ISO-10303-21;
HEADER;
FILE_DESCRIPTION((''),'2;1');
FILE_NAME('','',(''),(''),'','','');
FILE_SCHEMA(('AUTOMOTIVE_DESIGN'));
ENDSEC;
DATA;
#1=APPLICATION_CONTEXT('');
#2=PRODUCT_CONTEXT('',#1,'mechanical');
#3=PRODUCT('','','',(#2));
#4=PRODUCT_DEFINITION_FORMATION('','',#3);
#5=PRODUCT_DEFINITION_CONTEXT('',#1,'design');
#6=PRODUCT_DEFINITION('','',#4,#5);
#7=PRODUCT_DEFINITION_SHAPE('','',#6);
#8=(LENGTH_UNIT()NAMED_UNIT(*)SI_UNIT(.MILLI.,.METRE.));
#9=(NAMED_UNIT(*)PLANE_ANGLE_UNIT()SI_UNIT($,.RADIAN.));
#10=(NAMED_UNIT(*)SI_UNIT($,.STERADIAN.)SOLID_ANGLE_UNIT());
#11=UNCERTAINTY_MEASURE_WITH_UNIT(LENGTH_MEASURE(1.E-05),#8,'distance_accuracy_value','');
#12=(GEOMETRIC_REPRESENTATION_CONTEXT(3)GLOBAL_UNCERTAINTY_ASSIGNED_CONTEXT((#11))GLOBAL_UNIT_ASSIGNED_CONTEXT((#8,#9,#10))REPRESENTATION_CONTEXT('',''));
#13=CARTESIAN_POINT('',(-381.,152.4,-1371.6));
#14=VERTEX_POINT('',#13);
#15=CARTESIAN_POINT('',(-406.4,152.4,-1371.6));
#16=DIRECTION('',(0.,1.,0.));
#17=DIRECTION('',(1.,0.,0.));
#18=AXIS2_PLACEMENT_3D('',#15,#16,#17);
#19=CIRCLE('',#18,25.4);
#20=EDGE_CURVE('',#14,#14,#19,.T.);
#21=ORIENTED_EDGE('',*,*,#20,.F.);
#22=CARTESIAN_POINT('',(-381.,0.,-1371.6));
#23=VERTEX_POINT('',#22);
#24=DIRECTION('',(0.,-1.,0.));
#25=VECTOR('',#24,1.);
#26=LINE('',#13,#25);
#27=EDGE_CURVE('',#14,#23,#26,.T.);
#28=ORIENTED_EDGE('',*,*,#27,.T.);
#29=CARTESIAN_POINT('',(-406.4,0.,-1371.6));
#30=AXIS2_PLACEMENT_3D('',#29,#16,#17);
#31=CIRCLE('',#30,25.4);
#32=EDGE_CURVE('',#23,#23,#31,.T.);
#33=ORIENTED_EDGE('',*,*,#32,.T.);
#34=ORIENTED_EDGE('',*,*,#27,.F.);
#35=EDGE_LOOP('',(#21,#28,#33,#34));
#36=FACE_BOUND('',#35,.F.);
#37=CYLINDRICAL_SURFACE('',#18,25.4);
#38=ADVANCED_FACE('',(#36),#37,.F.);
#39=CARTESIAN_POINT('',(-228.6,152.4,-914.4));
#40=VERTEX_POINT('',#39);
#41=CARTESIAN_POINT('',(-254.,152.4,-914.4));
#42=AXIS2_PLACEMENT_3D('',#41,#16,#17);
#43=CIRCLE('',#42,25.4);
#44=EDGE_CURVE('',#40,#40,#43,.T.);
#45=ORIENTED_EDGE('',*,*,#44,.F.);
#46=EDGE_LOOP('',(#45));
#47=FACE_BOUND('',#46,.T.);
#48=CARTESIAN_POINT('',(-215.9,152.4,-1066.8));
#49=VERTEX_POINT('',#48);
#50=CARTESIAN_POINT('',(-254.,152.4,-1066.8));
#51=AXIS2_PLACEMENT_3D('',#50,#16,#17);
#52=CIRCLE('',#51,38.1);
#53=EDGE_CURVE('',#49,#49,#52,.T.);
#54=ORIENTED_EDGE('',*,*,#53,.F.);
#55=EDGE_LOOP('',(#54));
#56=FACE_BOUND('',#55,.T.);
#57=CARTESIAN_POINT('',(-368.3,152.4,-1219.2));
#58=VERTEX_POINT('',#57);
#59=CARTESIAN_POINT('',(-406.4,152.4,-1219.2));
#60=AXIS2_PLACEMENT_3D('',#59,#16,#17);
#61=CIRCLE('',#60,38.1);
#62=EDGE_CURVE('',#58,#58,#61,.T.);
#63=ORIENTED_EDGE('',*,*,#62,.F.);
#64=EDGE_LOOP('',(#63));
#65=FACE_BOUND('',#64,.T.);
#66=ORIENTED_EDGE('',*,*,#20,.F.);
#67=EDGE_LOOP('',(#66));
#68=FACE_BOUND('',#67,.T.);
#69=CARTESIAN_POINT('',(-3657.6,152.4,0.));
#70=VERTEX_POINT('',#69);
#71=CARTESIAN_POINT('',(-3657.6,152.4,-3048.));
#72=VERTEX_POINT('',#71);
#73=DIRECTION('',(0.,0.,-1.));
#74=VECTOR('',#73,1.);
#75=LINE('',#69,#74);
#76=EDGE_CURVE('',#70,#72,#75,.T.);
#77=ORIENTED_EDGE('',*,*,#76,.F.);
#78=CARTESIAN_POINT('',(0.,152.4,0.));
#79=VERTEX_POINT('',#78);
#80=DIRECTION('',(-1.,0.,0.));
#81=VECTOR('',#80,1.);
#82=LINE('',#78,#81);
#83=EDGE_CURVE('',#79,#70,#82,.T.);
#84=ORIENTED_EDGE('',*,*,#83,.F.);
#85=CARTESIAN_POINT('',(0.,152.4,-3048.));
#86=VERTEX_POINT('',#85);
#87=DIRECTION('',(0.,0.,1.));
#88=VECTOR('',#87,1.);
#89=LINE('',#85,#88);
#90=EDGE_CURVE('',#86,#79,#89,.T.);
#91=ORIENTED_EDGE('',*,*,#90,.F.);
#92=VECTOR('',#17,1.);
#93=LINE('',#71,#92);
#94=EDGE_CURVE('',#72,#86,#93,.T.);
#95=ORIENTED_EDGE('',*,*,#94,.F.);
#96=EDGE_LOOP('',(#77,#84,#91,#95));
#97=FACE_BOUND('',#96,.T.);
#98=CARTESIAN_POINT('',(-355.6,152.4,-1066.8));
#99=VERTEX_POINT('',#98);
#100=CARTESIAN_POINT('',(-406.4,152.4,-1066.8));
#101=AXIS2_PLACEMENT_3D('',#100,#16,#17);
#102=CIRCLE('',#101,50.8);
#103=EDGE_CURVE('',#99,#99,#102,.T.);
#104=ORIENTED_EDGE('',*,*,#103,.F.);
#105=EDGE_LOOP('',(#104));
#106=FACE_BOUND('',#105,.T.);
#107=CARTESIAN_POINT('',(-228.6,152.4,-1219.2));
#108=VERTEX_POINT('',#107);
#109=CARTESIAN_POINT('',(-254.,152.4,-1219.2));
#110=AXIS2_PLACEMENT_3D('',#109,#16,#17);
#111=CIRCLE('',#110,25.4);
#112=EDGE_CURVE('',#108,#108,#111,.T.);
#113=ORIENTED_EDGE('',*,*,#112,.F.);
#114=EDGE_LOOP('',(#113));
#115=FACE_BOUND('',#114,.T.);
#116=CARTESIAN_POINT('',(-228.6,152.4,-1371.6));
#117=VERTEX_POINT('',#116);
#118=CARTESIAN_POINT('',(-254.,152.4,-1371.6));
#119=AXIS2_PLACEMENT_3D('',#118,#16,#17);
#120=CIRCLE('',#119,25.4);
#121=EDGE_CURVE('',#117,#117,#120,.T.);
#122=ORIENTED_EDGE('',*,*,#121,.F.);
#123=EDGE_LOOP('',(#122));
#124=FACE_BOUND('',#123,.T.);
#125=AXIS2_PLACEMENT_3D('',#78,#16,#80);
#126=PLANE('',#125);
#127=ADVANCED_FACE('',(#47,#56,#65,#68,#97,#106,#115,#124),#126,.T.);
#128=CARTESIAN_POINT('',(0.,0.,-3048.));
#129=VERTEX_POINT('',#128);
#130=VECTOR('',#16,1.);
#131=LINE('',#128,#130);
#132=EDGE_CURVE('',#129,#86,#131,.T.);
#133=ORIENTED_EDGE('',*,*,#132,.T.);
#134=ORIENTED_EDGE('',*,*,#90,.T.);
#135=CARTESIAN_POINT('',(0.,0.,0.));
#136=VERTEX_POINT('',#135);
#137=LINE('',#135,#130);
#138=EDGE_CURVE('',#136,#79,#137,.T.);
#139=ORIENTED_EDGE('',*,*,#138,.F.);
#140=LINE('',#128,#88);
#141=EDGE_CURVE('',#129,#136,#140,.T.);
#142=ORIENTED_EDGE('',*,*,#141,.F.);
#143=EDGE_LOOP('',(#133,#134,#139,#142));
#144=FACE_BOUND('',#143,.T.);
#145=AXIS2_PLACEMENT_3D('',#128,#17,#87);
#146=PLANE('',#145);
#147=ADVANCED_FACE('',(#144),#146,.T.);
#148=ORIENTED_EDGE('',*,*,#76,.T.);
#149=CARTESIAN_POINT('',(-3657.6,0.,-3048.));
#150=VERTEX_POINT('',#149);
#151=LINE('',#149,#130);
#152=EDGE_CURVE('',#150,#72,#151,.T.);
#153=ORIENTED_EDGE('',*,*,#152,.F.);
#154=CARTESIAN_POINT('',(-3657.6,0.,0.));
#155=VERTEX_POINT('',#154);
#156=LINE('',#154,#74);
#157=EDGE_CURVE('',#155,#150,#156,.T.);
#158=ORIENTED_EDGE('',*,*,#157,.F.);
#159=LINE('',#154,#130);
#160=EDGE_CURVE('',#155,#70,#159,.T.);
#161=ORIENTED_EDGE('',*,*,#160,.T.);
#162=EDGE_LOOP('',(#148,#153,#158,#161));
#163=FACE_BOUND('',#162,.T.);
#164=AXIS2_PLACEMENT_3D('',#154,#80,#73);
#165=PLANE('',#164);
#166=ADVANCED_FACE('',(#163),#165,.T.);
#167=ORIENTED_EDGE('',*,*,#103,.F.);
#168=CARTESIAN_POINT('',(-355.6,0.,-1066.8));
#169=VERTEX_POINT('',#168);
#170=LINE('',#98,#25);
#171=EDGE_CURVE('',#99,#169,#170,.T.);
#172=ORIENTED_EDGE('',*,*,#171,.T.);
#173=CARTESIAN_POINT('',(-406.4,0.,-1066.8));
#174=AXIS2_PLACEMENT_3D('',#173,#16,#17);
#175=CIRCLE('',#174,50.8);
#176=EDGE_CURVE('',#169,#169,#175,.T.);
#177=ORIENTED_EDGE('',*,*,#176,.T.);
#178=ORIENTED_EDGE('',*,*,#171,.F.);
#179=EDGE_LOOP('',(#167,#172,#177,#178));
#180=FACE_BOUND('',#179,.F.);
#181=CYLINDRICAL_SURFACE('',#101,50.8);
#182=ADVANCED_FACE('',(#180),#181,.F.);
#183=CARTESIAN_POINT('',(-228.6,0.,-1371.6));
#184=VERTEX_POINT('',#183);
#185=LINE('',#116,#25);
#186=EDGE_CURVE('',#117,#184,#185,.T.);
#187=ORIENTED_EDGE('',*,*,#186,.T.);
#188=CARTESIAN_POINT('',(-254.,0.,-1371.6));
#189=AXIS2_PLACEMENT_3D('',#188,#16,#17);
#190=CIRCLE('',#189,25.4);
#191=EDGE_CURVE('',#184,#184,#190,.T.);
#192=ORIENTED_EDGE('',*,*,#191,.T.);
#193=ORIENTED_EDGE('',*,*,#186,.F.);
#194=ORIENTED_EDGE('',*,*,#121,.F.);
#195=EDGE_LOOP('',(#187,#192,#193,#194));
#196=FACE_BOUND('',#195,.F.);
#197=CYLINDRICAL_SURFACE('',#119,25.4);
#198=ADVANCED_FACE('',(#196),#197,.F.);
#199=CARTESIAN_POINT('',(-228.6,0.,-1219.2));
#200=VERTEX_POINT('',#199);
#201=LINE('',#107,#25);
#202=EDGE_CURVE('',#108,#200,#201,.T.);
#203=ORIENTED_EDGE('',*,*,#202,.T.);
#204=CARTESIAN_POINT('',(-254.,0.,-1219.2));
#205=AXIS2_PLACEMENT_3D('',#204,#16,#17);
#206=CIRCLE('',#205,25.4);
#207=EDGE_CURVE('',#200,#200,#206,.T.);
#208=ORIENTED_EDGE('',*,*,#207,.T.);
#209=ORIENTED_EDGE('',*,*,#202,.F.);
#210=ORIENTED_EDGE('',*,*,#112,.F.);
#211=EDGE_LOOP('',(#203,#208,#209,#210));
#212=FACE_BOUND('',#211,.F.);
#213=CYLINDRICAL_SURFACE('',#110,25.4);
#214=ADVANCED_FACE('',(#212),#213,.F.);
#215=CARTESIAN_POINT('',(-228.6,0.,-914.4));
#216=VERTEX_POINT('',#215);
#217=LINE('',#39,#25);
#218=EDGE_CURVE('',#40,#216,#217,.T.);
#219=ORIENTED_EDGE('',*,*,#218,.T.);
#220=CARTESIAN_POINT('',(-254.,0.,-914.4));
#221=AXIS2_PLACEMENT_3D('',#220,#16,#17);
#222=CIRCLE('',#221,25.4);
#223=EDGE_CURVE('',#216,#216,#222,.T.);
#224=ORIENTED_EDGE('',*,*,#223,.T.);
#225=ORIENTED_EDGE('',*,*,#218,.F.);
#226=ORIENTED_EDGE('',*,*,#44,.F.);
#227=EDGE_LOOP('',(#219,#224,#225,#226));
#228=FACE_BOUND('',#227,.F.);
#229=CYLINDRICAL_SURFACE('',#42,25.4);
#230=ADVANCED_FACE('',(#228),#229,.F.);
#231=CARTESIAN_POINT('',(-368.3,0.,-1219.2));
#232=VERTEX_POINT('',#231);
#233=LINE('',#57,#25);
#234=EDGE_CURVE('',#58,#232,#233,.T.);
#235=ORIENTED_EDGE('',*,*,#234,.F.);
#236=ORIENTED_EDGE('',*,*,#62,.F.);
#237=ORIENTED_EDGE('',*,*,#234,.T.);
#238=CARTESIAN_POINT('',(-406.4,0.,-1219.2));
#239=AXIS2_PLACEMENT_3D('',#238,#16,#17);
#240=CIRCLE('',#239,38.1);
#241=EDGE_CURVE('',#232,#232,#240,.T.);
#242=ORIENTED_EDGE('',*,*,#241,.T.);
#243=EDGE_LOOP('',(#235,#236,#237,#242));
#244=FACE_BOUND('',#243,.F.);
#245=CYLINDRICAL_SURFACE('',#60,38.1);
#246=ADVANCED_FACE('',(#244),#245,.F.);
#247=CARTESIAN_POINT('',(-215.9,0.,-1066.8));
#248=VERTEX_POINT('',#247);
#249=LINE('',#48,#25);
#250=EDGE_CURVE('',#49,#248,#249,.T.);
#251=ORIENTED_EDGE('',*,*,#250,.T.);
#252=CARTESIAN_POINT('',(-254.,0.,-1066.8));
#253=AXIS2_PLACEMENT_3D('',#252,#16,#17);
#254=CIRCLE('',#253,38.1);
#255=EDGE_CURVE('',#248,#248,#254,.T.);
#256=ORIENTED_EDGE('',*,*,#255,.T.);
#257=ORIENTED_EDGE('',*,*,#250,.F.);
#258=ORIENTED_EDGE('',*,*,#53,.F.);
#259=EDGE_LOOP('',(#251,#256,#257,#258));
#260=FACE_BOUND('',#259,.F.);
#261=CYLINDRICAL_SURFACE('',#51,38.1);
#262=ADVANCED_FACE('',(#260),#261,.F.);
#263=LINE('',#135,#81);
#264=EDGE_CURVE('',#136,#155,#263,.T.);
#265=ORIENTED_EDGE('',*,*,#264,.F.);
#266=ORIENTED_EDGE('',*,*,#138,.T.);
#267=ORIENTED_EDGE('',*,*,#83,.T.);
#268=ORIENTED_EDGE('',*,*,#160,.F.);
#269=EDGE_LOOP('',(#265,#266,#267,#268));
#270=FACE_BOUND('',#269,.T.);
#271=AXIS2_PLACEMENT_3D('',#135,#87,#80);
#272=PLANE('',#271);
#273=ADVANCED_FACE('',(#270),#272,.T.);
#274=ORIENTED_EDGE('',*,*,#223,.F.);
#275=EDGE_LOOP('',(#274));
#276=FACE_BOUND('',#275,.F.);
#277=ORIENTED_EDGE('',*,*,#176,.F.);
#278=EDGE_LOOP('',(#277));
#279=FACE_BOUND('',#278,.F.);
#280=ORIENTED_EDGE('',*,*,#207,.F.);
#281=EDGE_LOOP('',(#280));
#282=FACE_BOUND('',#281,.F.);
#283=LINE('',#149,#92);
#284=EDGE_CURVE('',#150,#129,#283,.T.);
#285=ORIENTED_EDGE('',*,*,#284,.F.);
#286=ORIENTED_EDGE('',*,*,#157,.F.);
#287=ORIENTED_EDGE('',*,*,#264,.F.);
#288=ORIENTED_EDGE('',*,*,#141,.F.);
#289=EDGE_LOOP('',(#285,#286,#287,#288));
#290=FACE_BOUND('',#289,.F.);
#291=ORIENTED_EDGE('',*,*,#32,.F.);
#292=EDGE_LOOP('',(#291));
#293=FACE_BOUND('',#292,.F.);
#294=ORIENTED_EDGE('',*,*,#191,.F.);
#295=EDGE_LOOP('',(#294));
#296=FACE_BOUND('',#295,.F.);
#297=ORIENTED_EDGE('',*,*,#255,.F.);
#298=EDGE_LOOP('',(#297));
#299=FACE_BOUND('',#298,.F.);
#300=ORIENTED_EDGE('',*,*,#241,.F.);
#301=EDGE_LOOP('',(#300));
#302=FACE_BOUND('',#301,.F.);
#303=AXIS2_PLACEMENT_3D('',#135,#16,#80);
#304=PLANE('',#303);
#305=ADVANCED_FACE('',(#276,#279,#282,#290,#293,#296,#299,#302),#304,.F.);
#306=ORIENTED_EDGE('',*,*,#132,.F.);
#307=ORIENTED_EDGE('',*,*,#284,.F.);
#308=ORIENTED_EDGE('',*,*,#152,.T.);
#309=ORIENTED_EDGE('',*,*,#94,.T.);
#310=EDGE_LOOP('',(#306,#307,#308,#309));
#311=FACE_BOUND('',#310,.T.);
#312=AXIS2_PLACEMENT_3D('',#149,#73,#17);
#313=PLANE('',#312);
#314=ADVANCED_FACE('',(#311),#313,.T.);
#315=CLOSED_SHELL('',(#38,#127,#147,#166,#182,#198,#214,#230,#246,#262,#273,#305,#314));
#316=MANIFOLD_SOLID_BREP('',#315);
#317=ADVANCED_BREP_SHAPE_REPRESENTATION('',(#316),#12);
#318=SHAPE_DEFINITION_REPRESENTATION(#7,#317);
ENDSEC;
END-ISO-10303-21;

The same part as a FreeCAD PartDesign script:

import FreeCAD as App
import Part
import Sketcher
Q = App.Units.Quantity

doc = App.newDocument("Part")
body = doc.addObject("PartDesign::Body", "Body")

# Sketch on XZ plane
sketch1 = body.newObject("Sketcher::SketchObject", "Sketch")
sketch1.AttachmentSupport = (doc.getObject("XZ_Plane"), [""])
sketch1.MapMode = "FlatFace"
sketch1.addGeometry(Part.LineSegment(App.Vector(-3657.6, 0, 0), App.Vector(0, 0, 0)), False)
sketch1.addGeometry(Part.LineSegment(App.Vector(0, 0, 0), App.Vector(0, -3048, 0)), False)
sketch1.addGeometry(Part.LineSegment(App.Vector(0, -3048, 0), App.Vector(-3657.6, -3048, 0)), False)
sketch1.addGeometry(Part.LineSegment(App.Vector(-3657.6, -3048, 0), App.Vector(-3657.6, 0, 0)), False)
sketch1.addConstraint(Sketcher.Constraint("Coincident", 0, 2, 1, 1))
sketch1.addConstraint(Sketcher.Constraint("Coincident", 1, 2, 2, 1))
sketch1.addConstraint(Sketcher.Constraint("Coincident", 2, 2, 3, 1))
sketch1.addConstraint(Sketcher.Constraint("Coincident", 3, 2, 0, 1))
sketch1.addConstraint(Sketcher.Constraint("Horizontal", 0))
sketch1.addConstraint(Sketcher.Constraint("Vertical", 1))
sketch1.addConstraint(Sketcher.Constraint("Horizontal", 2))
sketch1.addConstraint(Sketcher.Constraint("Vertical", 3))
sketch1.addConstraint(Sketcher.Constraint("Coincident", 0, 2, -1, 1))
sketch1.addConstraint(Sketcher.Constraint("DistanceX", 0, 1, 0, 2, Q("144 in")))
sketch1.addConstraint(Sketcher.Constraint("DistanceY", 1, 2, 1, 1, Q("120 in")))
pad1 = body.newObject("PartDesign::Pad", "Pad")
pad1.Profile = sketch1
pad1.Length = Q("6 in")
pad1.Reversed = True

# Sketch on XZ plane
sketch2 = body.newObject("Sketcher::SketchObject", "Sketch001")
sketch2.AttachmentSupport = (doc.getObject("XZ_Plane"), [""])
sketch2.MapMode = "FlatFace"
sketch2.AttachmentOffset = App.Placement(App.Vector(0, 0, -6 * 25.4), App.Rotation())
sketch2.addGeometry(Part.Circle(App.Vector(-254, -1371.6, 0), App.Vector(0, 0, 1), 25.4), False)
sketch2.addGeometry(Part.Circle(App.Vector(-254, -1219.2, 0), App.Vector(0, 0, 1), 25.4), False)
sketch2.addGeometry(Part.Circle(App.Vector(-254, -1066.8, 0), App.Vector(0, 0, 1), 38.1), False)
sketch2.addGeometry(Part.Circle(App.Vector(-406.4, -1066.8, 0), App.Vector(0, 0, 1), 50.8), False)
sketch2.addGeometry(Part.Circle(App.Vector(-406.4, -1219.2, 0), App.Vector(0, 0, 1), 38.1), False)
sketch2.addGeometry(Part.Circle(App.Vector(-406.4, -1371.6, 0), App.Vector(0, 0, 1), 25.4), False)
sketch2.addGeometry(Part.Circle(App.Vector(-254, -914.4, 0), App.Vector(0, 0, 1), 25.4), False)
sketch2.addConstraint(Sketcher.Constraint("Equal", 0, 1))
sketch2.addConstraint(Sketcher.Constraint("Equal", 2, 4))
sketch2.addConstraint(Sketcher.Constraint("Equal", 1, 5))
sketch2.addConstraint(Sketcher.Constraint("Equal", 5, 6))
sketch2.addConstraint(Sketcher.Constraint("Horizontal", 2, 3, 3, 3))
sketch2.addConstraint(Sketcher.Constraint("Horizontal", 1, 3, 4, 3))
sketch2.addConstraint(Sketcher.Constraint("Horizontal", 0, 3, 5, 3))
sketch2.addConstraint(Sketcher.Constraint("Vertical", 0, 3, 1, 3))
sketch2.addConstraint(Sketcher.Constraint("Vertical", 1, 3, 2, 3))
sketch2.addConstraint(Sketcher.Constraint("Vertical", 3, 3, 4, 3))
sketch2.addConstraint(Sketcher.Constraint("Vertical", 4, 3, 5, 3))
sketch2.addConstraint(Sketcher.Constraint("Vertical", 2, 3, 6, 3))
sketch2.addConstraint(Sketcher.Constraint("Diameter", 0, Q("2 in")))
sketch2.addConstraint(Sketcher.Constraint("Diameter", 2, Q("3 in")))
sketch2.addConstraint(Sketcher.Constraint("Diameter", 3, Q("4 in")))
sketch2.addConstraint(Sketcher.Constraint("DistanceX", 0, 3, -1, 1, Q("10 in")))
sketch2.addConstraint(Sketcher.Constraint("DistanceY", 0, 3, 1, 3, Q("6 in")))
sketch2.addConstraint(Sketcher.Constraint("DistanceY", 1, 3, 2, 3, Q("6 in")))
sketch2.addConstraint(Sketcher.Constraint("DistanceX", 3, 3, 2, 3, Q("6 in")))
sketch2.addConstraint(Sketcher.Constraint("DistanceY", 2, 3, 6, 3, Q("6 in")))
sketch2.addConstraint(Sketcher.Constraint("DistanceY", 0, 3, -1, 1, Q("54 in")))
pocket1 = body.newObject("PartDesign::Pocket", "Pocket")
pocket1.Profile = sketch2
pocket1.Type = "ThroughAll"
pocket1.Reversed = True

doc.recompute()
